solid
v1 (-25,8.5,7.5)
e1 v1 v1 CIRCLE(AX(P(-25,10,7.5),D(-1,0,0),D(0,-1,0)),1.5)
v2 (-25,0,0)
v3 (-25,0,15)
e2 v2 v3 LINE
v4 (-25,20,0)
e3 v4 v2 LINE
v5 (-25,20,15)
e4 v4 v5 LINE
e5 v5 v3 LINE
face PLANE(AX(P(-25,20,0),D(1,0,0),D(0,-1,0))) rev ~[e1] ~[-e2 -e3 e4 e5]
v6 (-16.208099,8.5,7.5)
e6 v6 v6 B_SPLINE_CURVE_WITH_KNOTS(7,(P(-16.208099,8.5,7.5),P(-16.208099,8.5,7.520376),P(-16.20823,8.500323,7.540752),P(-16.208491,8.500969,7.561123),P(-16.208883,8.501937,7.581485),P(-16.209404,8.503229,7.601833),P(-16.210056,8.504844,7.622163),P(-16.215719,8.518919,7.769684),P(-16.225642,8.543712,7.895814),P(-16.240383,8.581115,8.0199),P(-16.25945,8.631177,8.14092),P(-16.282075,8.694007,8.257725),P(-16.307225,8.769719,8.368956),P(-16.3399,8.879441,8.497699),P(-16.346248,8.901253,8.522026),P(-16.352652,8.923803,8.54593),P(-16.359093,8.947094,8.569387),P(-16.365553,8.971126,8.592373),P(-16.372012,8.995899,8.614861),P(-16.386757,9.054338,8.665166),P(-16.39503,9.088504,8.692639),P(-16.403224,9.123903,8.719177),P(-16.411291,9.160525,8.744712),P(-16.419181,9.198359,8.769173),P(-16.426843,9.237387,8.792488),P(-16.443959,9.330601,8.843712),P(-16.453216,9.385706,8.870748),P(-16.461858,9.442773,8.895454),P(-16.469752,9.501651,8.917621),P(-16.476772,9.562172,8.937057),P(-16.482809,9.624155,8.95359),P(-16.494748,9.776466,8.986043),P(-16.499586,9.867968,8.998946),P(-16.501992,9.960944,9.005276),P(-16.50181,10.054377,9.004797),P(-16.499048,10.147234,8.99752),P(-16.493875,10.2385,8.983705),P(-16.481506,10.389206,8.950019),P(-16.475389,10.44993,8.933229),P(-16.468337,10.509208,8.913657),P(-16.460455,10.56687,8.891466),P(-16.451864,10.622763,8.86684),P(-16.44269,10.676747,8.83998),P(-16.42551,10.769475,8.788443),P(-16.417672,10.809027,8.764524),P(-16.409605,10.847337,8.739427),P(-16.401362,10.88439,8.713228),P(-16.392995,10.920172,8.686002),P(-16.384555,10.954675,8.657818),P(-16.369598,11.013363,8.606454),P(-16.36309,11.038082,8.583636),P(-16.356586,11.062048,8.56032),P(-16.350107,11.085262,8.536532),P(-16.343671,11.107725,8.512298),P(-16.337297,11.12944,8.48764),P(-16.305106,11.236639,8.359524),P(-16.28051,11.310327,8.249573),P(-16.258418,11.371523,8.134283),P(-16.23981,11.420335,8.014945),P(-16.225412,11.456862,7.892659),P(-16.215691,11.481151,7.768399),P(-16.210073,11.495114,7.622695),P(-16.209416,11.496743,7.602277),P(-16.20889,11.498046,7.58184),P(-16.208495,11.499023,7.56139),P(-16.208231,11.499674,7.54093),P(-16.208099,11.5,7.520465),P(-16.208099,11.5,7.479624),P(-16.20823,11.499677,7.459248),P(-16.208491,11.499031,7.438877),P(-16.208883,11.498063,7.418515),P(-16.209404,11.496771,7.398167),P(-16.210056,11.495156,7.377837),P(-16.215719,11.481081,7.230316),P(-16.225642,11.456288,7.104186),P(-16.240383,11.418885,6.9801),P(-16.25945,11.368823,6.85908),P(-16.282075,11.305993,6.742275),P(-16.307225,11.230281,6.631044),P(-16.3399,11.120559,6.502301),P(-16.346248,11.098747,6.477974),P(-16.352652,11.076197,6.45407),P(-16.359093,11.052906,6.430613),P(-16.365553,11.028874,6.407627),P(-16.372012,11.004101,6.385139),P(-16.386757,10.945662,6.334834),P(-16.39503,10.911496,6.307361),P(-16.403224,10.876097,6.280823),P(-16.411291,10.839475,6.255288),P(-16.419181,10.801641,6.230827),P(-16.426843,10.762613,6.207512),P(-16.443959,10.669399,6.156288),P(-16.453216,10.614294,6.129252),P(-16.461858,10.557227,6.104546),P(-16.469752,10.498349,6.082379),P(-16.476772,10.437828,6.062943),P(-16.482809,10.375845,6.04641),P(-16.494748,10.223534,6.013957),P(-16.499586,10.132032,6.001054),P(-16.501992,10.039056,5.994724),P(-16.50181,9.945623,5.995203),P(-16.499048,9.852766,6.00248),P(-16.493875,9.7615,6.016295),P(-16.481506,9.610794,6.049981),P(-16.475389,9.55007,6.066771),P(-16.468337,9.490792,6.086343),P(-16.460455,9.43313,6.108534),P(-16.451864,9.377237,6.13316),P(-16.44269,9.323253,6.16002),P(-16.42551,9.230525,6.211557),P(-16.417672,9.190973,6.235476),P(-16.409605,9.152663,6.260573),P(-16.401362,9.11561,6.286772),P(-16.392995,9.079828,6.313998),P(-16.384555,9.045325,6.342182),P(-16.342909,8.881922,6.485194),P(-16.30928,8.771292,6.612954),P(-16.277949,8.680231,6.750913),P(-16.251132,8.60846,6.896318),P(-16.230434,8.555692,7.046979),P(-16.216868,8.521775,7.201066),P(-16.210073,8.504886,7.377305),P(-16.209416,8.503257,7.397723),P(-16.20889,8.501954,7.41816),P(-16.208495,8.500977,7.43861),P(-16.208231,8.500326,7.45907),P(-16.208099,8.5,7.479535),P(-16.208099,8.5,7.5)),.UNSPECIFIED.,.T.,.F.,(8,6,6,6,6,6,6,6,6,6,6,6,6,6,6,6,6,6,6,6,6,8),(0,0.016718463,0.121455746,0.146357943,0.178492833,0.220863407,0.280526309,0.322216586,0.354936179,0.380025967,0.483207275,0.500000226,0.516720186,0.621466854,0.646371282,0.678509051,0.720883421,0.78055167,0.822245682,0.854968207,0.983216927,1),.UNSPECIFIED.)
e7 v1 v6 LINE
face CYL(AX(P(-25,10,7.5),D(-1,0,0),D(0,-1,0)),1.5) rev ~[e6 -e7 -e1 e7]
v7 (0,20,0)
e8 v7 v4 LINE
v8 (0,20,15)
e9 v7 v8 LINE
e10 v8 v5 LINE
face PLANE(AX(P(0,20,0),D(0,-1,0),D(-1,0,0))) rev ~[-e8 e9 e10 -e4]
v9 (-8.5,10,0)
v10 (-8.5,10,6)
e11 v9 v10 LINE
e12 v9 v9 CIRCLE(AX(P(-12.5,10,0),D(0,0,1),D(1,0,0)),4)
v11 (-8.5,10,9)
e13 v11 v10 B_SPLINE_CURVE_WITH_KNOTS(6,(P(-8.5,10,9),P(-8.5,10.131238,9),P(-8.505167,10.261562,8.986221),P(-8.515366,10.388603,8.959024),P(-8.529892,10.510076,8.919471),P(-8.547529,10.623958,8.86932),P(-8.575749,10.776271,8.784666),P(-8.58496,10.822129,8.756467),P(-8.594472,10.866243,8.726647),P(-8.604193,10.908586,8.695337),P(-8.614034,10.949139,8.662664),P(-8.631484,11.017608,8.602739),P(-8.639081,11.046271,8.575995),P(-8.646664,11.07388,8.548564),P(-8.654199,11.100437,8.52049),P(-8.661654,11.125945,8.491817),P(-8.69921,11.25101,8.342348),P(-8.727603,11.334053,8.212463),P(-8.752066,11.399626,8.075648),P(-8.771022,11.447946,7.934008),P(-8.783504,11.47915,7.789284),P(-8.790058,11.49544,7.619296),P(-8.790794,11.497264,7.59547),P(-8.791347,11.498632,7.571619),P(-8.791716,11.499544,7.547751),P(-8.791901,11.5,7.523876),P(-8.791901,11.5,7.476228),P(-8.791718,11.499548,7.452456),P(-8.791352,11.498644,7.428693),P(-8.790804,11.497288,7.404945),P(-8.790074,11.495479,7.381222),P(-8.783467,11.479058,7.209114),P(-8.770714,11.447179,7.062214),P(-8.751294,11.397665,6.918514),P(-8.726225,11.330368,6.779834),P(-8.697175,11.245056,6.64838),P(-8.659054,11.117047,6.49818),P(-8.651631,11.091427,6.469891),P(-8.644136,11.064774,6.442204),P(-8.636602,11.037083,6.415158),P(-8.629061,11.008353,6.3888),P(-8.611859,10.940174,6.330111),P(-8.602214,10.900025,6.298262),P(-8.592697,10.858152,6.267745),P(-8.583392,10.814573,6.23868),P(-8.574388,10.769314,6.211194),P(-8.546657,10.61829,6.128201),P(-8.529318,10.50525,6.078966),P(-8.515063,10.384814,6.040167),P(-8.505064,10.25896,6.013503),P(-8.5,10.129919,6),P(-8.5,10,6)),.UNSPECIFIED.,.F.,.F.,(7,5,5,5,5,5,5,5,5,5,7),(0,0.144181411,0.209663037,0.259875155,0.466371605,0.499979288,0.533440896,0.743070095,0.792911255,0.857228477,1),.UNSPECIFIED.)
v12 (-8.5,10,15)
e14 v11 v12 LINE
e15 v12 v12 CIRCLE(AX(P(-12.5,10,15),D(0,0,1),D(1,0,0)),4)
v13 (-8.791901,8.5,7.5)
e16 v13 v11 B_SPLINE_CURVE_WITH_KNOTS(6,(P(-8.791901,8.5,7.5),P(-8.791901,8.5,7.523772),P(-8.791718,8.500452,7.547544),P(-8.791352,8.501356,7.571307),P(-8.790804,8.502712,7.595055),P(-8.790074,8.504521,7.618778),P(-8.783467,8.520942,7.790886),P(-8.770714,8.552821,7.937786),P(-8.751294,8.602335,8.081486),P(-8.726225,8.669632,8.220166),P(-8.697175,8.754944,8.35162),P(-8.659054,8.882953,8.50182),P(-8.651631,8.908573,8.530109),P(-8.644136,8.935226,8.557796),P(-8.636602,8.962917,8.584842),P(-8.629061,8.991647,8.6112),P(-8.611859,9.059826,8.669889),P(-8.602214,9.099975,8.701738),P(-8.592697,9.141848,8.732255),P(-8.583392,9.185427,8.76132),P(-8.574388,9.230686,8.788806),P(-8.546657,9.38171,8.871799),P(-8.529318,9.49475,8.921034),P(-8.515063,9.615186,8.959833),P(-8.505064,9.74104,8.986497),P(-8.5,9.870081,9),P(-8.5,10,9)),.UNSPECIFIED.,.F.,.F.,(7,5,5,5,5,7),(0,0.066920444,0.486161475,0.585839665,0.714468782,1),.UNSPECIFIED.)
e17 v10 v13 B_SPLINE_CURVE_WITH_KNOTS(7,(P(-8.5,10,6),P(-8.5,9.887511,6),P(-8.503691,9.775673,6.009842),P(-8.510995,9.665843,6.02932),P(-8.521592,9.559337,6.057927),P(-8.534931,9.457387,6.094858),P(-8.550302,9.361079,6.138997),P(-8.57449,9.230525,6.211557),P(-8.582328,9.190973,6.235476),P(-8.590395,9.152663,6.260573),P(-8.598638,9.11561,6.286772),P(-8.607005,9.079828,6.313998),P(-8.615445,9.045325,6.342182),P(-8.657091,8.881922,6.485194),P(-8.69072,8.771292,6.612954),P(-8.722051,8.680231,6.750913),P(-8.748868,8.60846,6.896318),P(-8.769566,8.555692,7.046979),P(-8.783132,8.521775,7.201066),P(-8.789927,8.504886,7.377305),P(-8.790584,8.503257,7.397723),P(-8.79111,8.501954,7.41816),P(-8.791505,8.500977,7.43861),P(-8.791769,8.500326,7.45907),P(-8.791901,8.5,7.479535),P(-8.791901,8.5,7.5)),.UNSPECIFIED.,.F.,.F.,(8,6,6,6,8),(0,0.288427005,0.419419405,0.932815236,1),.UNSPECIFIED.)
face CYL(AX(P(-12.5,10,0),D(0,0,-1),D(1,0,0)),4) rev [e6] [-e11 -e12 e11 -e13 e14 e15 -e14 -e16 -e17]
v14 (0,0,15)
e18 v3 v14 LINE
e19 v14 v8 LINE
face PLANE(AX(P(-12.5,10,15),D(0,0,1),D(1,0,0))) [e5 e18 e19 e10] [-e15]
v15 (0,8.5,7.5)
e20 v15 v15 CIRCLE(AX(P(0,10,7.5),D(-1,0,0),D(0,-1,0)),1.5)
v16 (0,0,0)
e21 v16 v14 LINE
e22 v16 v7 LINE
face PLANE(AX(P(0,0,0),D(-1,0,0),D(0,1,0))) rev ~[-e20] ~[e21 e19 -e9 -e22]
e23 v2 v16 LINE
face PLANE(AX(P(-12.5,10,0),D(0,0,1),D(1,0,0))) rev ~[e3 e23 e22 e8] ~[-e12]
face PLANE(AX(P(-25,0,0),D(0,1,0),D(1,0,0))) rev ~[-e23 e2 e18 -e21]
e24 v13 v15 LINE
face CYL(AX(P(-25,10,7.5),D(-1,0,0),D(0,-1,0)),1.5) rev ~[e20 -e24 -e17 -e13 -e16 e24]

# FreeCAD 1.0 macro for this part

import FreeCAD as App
import Part
import Sketcher
Q = App.Units.Quantity


def add_polygon(sketch, points):
    """Adds a closed chain of lines whose ends are joined by coincident constraints."""
    first, n = sketch.GeometryCount, len(points)
    for a, b in zip(points, points[1:] + points[:1]):
        sketch.addGeometry(Part.LineSegment(App.Vector(*a, 0), App.Vector(*b, 0)), False)
    for i in range(n):
        sketch.addConstraint(Sketcher.Constraint("Coincident", first + i, 2, first + (i + 1) % n, 1))

doc = App.newDocument("Part")
body = doc.addObject("PartDesign::Body", "Body")

# Sketch on XY plane
sketch1 = body.newObject("Sketcher::SketchObject", "Sketch")
sketch1.AttachmentSupport = (doc.getObject("XY_Plane"), [""])
sketch1.MapMode = "FlatFace"
add_polygon(sketch1, [(-25, 0), (0, 0), (0, 20), (-25, 20)])  # lines 0-3
sketch1.addGeometry(Part.Circle(App.Vector(-12.5, 10, 0), App.Vector(0, 0, 1), 4), False)  # 4
sketch1.addConstraint(Sketcher.Constraint("Horizontal", 0))
sketch1.addConstraint(Sketcher.Constraint("Vertical", 1))
sketch1.addConstraint(Sketcher.Constraint("Horizontal", 2))
sketch1.addConstraint(Sketcher.Constraint("Vertical", 3))
sketch1.addConstraint(Sketcher.Constraint("Coincident", 0, 2, -1, 1))
sketch1.addConstraint(Sketcher.Constraint("Diameter", 4, Q("8 mm")))
sketch1.addConstraint(Sketcher.Constraint("DistanceX", 0, 1, 0, 2, Q("25 mm")))
sketch1.addConstraint(Sketcher.Constraint("DistanceY", 1, 1, 1, 2, Q("20 mm")))
sketch1.addConstraint(Sketcher.Constraint("DistanceY", -1, 1, 4, 3, Q("10 mm")))
sketch1.addConstraint(Sketcher.Constraint("DistanceX", 4, 3, -1, 1, Q("12.5 mm")))
pad1 = body.newObject("PartDesign::Pad", "Pad")
pad1.Profile = sketch1
pad1.Length = 15

# Sketch on YZ plane
sketch2 = body.newObject("Sketcher::SketchObject", "Sketch001")
sketch2.AttachmentSupport = (doc.getObject("YZ_Plane"), [""])
sketch2.MapMode = "FlatFace"
sketch2.AttachmentOffset = App.Placement(App.Vector(0, 0, -25), App.Rotation())
sketch2.addGeometry(Part.Circle(App.Vector(10, 7.5, 0), App.Vector(0, 0, 1), 1.5), False)
sketch2.addConstraint(Sketcher.Constraint("Diameter", 0, Q("3 mm")))
sketch2.addConstraint(Sketcher.Constraint("DistanceX", -1, 1, 0, 3, Q("10 mm")))
sketch2.addConstraint(Sketcher.Constraint("DistanceY", -1, 1, 0, 3, Q("7.5 mm")))
pocket1 = body.newObject("PartDesign::Pocket", "Pocket")
pocket1.Profile = sketch2
pocket1.Length = 50
pocket1.Reversed = True

doc.recompute()
